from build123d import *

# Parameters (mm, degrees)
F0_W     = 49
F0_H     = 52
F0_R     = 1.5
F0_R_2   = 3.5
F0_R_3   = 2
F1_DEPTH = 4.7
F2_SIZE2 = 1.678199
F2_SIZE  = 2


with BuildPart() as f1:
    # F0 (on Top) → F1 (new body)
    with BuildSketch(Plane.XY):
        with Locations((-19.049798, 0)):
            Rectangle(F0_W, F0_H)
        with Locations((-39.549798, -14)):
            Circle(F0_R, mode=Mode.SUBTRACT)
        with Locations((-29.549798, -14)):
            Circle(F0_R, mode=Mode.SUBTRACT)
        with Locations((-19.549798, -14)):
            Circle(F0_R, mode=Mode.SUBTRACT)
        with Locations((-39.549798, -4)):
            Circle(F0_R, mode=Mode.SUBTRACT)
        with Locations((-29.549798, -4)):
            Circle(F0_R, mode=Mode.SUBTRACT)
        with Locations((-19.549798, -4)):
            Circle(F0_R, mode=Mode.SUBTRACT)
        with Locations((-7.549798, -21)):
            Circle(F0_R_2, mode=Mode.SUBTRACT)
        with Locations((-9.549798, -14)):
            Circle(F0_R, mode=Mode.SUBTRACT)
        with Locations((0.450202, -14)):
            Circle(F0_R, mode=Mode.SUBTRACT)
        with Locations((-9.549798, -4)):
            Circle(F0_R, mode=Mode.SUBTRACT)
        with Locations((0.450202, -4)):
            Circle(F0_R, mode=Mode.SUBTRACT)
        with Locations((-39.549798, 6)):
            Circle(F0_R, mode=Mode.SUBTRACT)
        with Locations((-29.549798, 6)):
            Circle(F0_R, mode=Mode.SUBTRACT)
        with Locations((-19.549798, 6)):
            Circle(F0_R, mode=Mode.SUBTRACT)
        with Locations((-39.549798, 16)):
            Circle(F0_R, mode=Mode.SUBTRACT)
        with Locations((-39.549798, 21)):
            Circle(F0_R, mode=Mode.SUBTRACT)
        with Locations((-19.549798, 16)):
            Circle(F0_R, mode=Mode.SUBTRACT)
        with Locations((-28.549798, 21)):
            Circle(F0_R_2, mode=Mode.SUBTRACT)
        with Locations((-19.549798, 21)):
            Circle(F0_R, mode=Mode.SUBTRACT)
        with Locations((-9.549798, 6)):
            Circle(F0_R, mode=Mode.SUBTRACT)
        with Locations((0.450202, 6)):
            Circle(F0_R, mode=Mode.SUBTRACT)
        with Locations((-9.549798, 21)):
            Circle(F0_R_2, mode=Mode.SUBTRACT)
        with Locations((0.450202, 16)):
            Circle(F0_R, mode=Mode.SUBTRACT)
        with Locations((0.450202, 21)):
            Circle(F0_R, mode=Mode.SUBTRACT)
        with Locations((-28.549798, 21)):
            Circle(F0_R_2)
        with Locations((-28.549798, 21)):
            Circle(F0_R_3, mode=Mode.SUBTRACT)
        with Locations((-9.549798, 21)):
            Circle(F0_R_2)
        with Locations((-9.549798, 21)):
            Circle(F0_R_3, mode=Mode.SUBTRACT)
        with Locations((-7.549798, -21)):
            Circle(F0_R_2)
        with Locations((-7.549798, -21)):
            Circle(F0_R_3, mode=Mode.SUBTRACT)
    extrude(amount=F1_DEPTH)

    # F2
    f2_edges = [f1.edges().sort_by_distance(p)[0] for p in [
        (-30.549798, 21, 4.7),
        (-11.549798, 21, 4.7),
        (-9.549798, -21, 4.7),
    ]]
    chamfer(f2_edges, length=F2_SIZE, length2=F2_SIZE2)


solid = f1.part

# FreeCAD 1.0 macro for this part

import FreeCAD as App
import Part
import Sketcher
from FreeCAD import Vector


def edges_at(feature, points):
    """Names of the edges that pass closest to the given points."""
    edges = feature.Shape.Edges
    near = lambda p: min(range(len(edges)), key=lambda i: edges[i].distToShape(Part.Vertex(*p))[0])
    return sorted({f"Edge{near(p) + 1}" for p in points})


def add_polygon(sketch, points):
    """Adds a closed chain of lines whose ends are joined by coincident constraints."""
    first, n = sketch.GeometryCount, len(points)
    for a, b in zip(points, points[1:] + points[:1]):
        sketch.addGeometry(Part.LineSegment(App.Vector(*a, 0), App.Vector(*b, 0)), False)
    for i in range(n):
        sketch.addConstraint(Sketcher.Constraint("Coincident", first + i, 2, first + (i + 1) % n, 1))

doc = App.newDocument("Part")
body = doc.addObject("PartDesign::Body", "Body")

sketch1 = body.newObject("Sketcher::SketchObject", "Sketch")
sketch1.AttachmentSupport = (doc.getObject("XY_Plane"), [""])
sketch1.MapMode = "FlatFace"
add_polygon(sketch1, [(-43.549798, 26), (-43.549798, -26), (5.450202, -26), (5.450202, 26)])
sketch1.addGeometry(Part.Circle(Vector(-39.549798, -14, 0), Vector(0, 0, 1), 1.5), False)
sketch1.addGeometry(Part.Circle(Vector(-29.549798, -14, 0), Vector(0, 0, 1), 1.5), False)
sketch1.addGeometry(Part.Circle(Vector(-39.549798, -4, 0), Vector(0, 0, 1), 1.5), False)
sketch1.addGeometry(Part.Circle(Vector(-29.549798, -4, 0), Vector(0, 0, 1), 1.5), False)
sketch1.addGeometry(Part.Circle(Vector(-19.549798, -14, 0), Vector(0, 0, 1), 1.5), False)
sketch1.addGeometry(Part.Circle(Vector(-9.549798, -14, 0), Vector(0, 0, 1), 1.5), False)
sketch1.addGeometry(Part.Circle(Vector(-7.549798, -21, 0), Vector(0, 0, 1), 2), False)
sketch1.addGeometry(Part.Circle(Vector(0.450202, -14, 0), Vector(0, 0, 1), 1.5), False)
sketch1.addGeometry(Part.Circle(Vector(-19.549798, -4, 0), Vector(0, 0, 1), 1.5), False)
sketch1.addGeometry(Part.Circle(Vector(-9.549798, -4, 0), Vector(0, 0, 1), 1.5), False)
sketch1.addGeometry(Part.Circle(Vector(0.450202, -4, 0), Vector(0, 0, 1), 1.5), False)
sketch1.addGeometry(Part.Circle(Vector(-39.549798, 6, 0), Vector(0, 0, 1), 1.5), False)
sketch1.addGeometry(Part.Circle(Vector(-29.549798, 6, 0), Vector(0, 0, 1), 1.5), False)
sketch1.addGeometry(Part.Circle(Vector(-39.549798, 16, 0), Vector(0, 0, 1), 1.5), False)
sketch1.addGeometry(Part.Circle(Vector(-39.549798, 21, 0), Vector(0, 0, 1), 1.5), False)
sketch1.addGeometry(Part.Circle(Vector(-28.549798, 21, 0), Vector(0, 0, 1), 2), False)
sketch1.addGeometry(Part.Circle(Vector(-19.549798, 6, 0), Vector(0, 0, 1), 1.5), False)
sketch1.addGeometry(Part.Circle(Vector(-9.549798, 6, 0), Vector(0, 0, 1), 1.5), False)
sketch1.addGeometry(Part.Circle(Vector(0.450202, 6, 0), Vector(0, 0, 1), 1.5), False)
sketch1.addGeometry(Part.Circle(Vector(-19.549798, 16, 0), Vector(0, 0, 1), 1.5), False)
sketch1.addGeometry(Part.Circle(Vector(-19.549798, 21, 0), Vector(0, 0, 1), 1.5), False)
sketch1.addGeometry(Part.Circle(Vector(-9.549798, 21, 0), Vector(0, 0, 1), 2), False)
sketch1.addGeometry(Part.Circle(Vector(0.450202, 16, 0), Vector(0, 0, 1), 1.5), False)
sketch1.addGeometry(Part.Circle(Vector(0.450202, 21, 0), Vector(0, 0, 1), 1.5), False)
sketch1.addConstraint(Sketcher.Constraint("Vertical", 0))
sketch1.addConstraint(Sketcher.Constraint("Horizontal", 1))
sketch1.addConstraint(Sketcher.Constraint("Vertical", 2))
sketch1.addConstraint(Sketcher.Constraint("Horizontal", 3))
sketch1.addConstraint(Sketcher.Constraint("Equal", 4, 5))
sketch1.addConstraint(Sketcher.Constraint("Equal", 5, 6))
sketch1.addConstraint(Sketcher.Constraint("Equal", 6, 7))
sketch1.addConstraint(Sketcher.Constraint("Equal", 7, 8))
sketch1.addConstraint(Sketcher.Constraint("Equal", 8, 9))
sketch1.addConstraint(Sketcher.Constraint("Equal", 9, 11))
sketch1.addConstraint(Sketcher.Constraint("Equal", 11, 12))
sketch1.addConstraint(Sketcher.Constraint("Equal", 12, 13))
sketch1.addConstraint(Sketcher.Constraint("Equal", 13, 14))
sketch1.addConstraint(Sketcher.Constraint("Equal", 14, 15))
sketch1.addConstraint(Sketcher.Constraint("Equal", 15, 16))
sketch1.addConstraint(Sketcher.Constraint("Equal", 16, 17))
sketch1.addConstraint(Sketcher.Constraint("Equal", 17, 18))
sketch1.addConstraint(Sketcher.Constraint("Equal", 10, 19))
sketch1.addConstraint(Sketcher.Constraint("Equal", 18, 20))
sketch1.addConstraint(Sketcher.Constraint("Equal", 20, 21))
sketch1.addConstraint(Sketcher.Constraint("Equal", 21, 22))
sketch1.addConstraint(Sketcher.Constraint("Equal", 22, 23))
sketch1.addConstraint(Sketcher.Constraint("Equal", 23, 24))
sketch1.addConstraint(Sketcher.Constraint("Equal", 19, 25))
sketch1.addConstraint(Sketcher.Constraint("Equal", 24, 26))
sketch1.addConstraint(Sketcher.Constraint("Equal", 26, 27))
sketch1.addConstraint(Sketcher.Constraint("Horizontal", 4, 3, 5, 3))
sketch1.addConstraint(Sketcher.Constraint("Horizontal", 6, 3, 7, 3))
sketch1.addConstraint(Sketcher.Constraint("Horizontal", 5, 3, 8, 3))
sketch1.addConstraint(Sketcher.Constraint("Horizontal", 8, 3, 9, 3))
sketch1.addConstraint(Sketcher.Constraint("Horizontal", 9, 3, 11, 3))
sketch1.addConstraint(Sketcher.Constraint("Horizontal", 7, 3, 12, 3))
sketch1.addConstraint(Sketcher.Constraint("Horizontal", 12, 3, 13, 3))
sketch1.addConstraint(Sketcher.Constraint("Horizontal", 13, 3, 14, 3))
sketch1.addConstraint(Sketcher.Constraint("Horizontal", 15, 3, 16, 3))
sketch1.addConstraint(Sketcher.Constraint("Horizontal", 18, 3, 19, 3))
sketch1.addConstraint(Sketcher.Constraint("Horizontal", 16, 3, 20, 3))
sketch1.addConstraint(Sketcher.Constraint("Horizontal", 20, 3, 21, 3))
sketch1.addConstraint(Sketcher.Constraint("Horizontal", 21, 3, 22, 3))
sketch1.addConstraint(Sketcher.Constraint("Horizontal", 17, 3, 23, 3))
sketch1.addConstraint(Sketcher.Constraint("Horizontal", 19, 3, 24, 3))
sketch1.addConstraint(Sketcher.Constraint("Horizontal", 24, 3, 25, 3))
sketch1.addConstraint(Sketcher.Constraint("Horizontal", 23, 3, 26, 3))
sketch1.addConstraint(Sketcher.Constraint("Horizontal", 25, 3, 27, 3))
sketch1.addConstraint(Sketcher.Constraint("Vertical", 4, 3, 6, 3))
sketch1.addConstraint(Sketcher.Constraint("Vertical", 5, 3, 7, 3))
sketch1.addConstraint(Sketcher.Constraint("Vertical", 8, 3, 12, 3))
sketch1.addConstraint(Sketcher.Constraint("Vertical", 9, 3, 13, 3))
sketch1.addConstraint(Sketcher.Constraint("Vertical", 11, 3, 14, 3))
sketch1.addConstraint(Sketcher.Constraint("Vertical", 6, 3, 15, 3))
sketch1.addConstraint(Sketcher.Constraint("Vertical", 7, 3, 16, 3))
sketch1.addConstraint(Sketcher.Constraint("Vertical", 15, 3, 17, 3))
sketch1.addConstraint(Sketcher.Constraint("Vertical", 17, 3, 18, 3))
sketch1.addConstraint(Sketcher.Constraint("Vertical", 12, 3, 20, 3))
sketch1.addConstraint(Sketcher.Constraint("Vertical", 13, 3, 21, 3))
sketch1.addConstraint(Sketcher.Constraint("Vertical", 14, 3, 22, 3))
sketch1.addConstraint(Sketcher.Constraint("Vertical", 20, 3, 23, 3))
sketch1.addConstraint(Sketcher.Constraint("Vertical", 23, 3, 24, 3))
sketch1.addConstraint(Sketcher.Constraint("Vertical", 21, 3, 25, 3))
sketch1.addConstraint(Sketcher.Constraint("Vertical", 22, 3, 26, 3))
sketch1.addConstraint(Sketcher.Constraint("Vertical", 26, 3, 27, 3))
sketch1.addConstraint(Sketcher.Constraint("Diameter", 4, 3.0))
sketch1.addConstraint(Sketcher.Constraint("Diameter", 10, 4.0))
sketch1.addConstraint(Sketcher.Constraint("DistanceX", 1, 1, 1, 2, 49.0))
sketch1.addConstraint(Sketcher.Constraint("DistanceY", 0, 2, 0, 1, 52.0))
sketch1.addConstraint(Sketcher.Constraint("DistanceY", 4, 3, -1, 1, 14.0))
sketch1.addConstraint(Sketcher.Constraint("DistanceY", 6, 3, -1, 1, 4.0))
sketch1.addConstraint(Sketcher.Constraint("DistanceY", 10, 3, -1, 1, 21.0))
sketch1.addConstraint(Sketcher.Constraint("DistanceY", -1, 1, 15, 3, 6.0))
sketch1.addConstraint(Sketcher.Constraint("DistanceY", -1, 1, 17, 3, 16.0))
sketch1.addConstraint(Sketcher.Constraint("DistanceY", -1, 1, 18, 3, 21.0))
sketch1.addConstraint(Sketcher.Constraint("DistanceY", 0, 2, -1, 1, 26.0))
sketch1.addConstraint(Sketcher.Constraint("DistanceX", 4, 3, 5, 3, 10.0))
sketch1.addConstraint(Sketcher.Constraint("DistanceX", 5, 3, 8, 3, 10.0))
sketch1.addConstraint(Sketcher.Constraint("DistanceX", 8, 3, 9, 3, 10.0))
sketch1.addConstraint(Sketcher.Constraint("DistanceX", 9, 3, 10, 3, 2.0))
sketch1.addConstraint(Sketcher.Constraint("DistanceX", 9, 3, 11, 3, 10.0))
sketch1.addConstraint(Sketcher.Constraint("DistanceX", 18, 3, 19, 3, 11.0))
sketch1.addConstraint(Sketcher.Constraint("DistanceX", 0, 2, 4, 3, 4.0))
sketch1.addConstraint(Sketcher.Constraint("DistanceX", 4, 3, -1, 1, 39.549798))
pad1 = body.newObject("PartDesign::Pad", "Pad")
pad1.Profile = sketch1
pad1.Length = 4.7
doc.recompute()

chamfer = body.newObject("PartDesign::Chamfer", "Chamfer")
chamfer.Base = (pad1, edges_at(pad1, [(-30.55, 21, 4.7), (-11.55, 21, 4.7), (-9.55, -21, 4.7)]))
chamfer.ChamferType = "Two distances"
chamfer.Size = 2
chamfer.Size2 = 1.678199

doc.recompute()
